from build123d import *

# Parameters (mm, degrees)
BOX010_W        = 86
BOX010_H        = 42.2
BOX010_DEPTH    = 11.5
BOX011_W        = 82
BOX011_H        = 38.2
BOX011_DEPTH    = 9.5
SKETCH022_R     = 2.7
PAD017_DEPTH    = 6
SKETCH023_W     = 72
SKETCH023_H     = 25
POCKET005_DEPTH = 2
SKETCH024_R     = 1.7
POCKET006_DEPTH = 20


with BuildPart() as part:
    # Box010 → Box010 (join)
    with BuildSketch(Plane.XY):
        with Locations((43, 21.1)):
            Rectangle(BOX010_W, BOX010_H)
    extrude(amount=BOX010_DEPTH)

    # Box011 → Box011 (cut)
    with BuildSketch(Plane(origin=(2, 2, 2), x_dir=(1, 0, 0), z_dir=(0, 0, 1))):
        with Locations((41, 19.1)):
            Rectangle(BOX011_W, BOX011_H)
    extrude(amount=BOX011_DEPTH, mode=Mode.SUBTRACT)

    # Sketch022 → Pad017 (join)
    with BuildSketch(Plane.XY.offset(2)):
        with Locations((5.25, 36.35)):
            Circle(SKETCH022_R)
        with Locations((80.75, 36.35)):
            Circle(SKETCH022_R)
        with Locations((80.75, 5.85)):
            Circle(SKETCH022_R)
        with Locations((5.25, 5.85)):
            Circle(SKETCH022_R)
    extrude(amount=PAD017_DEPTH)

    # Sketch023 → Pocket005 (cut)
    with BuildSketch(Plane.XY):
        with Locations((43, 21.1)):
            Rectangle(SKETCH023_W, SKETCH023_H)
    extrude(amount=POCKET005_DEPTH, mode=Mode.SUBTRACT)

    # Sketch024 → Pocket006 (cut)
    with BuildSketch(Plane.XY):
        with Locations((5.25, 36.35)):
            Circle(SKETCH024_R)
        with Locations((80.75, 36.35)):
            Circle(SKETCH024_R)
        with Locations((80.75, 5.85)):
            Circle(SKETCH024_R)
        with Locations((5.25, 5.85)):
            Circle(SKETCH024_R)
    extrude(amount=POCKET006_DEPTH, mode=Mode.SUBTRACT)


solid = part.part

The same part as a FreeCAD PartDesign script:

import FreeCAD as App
import Part
import Sketcher

doc = App.newDocument("Part")
body = doc.addObject("PartDesign::Body", "Body")

# Sketch on XY plane
sketch1 = doc.addObject("Sketcher::SketchObject", "Sketch")
body.addObject(sketch1)
sketch1.AttachmentSupport = (doc.XY_Plane, [""])
sketch1.MapMode = "FlatFace"
sketch1.addGeometry([
    Part.LineSegment(App.Vector(0, 42, 0), App.Vector(0, 0, 0)),
    Part.LineSegment(App.Vector(0, 0, 0), App.Vector(86, 0, 0)),
    Part.LineSegment(App.Vector(86, 0, 0), App.Vector(86, 42, 0)),
    Part.LineSegment(App.Vector(86, 42, 0), App.Vector(0, 42, 0)),
], False)
sketch1.addConstraint([
    Sketcher.Constraint("Coincident", 0, 2, 1, 1),
    Sketcher.Constraint("Coincident", 1, 2, 2, 1),
    Sketcher.Constraint("Coincident", 2, 2, 3, 1),
    Sketcher.Constraint("Coincident", 3, 2, 0, 1),
    Sketcher.Constraint("Vertical", 0),
    Sketcher.Constraint("Horizontal", 1),
    Sketcher.Constraint("Vertical", 2),
    Sketcher.Constraint("Horizontal", 3),
    Sketcher.Constraint("Coincident", 0, 2, -1, 1),
    Sketcher.Constraint("DistanceX", 1, 1, 1, 2, 86.0),
    Sketcher.Constraint("DistanceY", 0, 2, 0, 1, 42.2),
])
pad1 = doc.addObject("PartDesign::Pad", "Pad")
body.addObject(pad1)
pad1.Profile = sketch1
pad1.Length = 11.5

# Sketch on XY plane
sketch2 = doc.addObject("Sketcher::SketchObject", "Sketch001")
body.addObject(sketch2)
sketch2.AttachmentSupport = (doc.XY_Plane, [""])
sketch2.MapMode = "FlatFace"
sketch2.AttachmentOffset = App.Placement(App.Vector(0, 0, 2), App.Rotation())
sketch2.addGeometry([
    Part.LineSegment(App.Vector(2, 40, 0), App.Vector(2, 2, 0)),
    Part.LineSegment(App.Vector(2, 2, 0), App.Vector(84, 2, 0)),
    Part.LineSegment(App.Vector(84, 2, 0), App.Vector(84, 40, 0)),
    Part.LineSegment(App.Vector(84, 40, 0), App.Vector(2, 40, 0)),
], False)
sketch2.addConstraint([
    Sketcher.Constraint("Coincident", 0, 2, 1, 1),
    Sketcher.Constraint("Coincident", 1, 2, 2, 1),
    Sketcher.Constraint("Coincident", 2, 2, 3, 1),
    Sketcher.Constraint("Coincident", 3, 2, 0, 1),
    Sketcher.Constraint("Vertical", 0),
    Sketcher.Constraint("Horizontal", 1),
    Sketcher.Constraint("Vertical", 2),
    Sketcher.Constraint("Horizontal", 3),
    Sketcher.Constraint("DistanceX", 1, 1, 1, 2, 82.0),
    Sketcher.Constraint("DistanceY", 0, 2, 0, 1, 38.2),
    Sketcher.Constraint("DistanceX", -1, 1, 0, 2, 2.0),
    Sketcher.Constraint("DistanceY", -1, 1, 0, 2, 2.0),
])
pocket1 = doc.addObject("PartDesign::Pocket", "Pocket")
body.addObject(pocket1)
pocket1.Profile = sketch2
pocket1.Length = 9.5
pocket1.Reversed = True

# Sketch on XY plane
sketch3 = doc.addObject("Sketcher::SketchObject", "Sketch002")
body.addObject(sketch3)
sketch3.AttachmentSupport = (doc.XY_Plane, [""])
sketch3.MapMode = "FlatFace"
sketch3.AttachmentOffset = App.Placement(App.Vector(0, 0, 2), App.Rotation())
sketch3.addGeometry([
    Part.Circle(App.Vector(5.2, 36.4, 0), App.Vector(0, 0, 1), 2.7),
    Part.Circle(App.Vector(80.8, 36.4, 0), App.Vector(0, 0, 1), 2.7),
    Part.Circle(App.Vector(80.8, 5.8, 0), App.Vector(0, 0, 1), 2.7),
    Part.Circle(App.Vector(5.2, 5.8, 0), App.Vector(0, 0, 1), 2.7),
], False)
sketch3.addConstraint([
    Sketcher.Constraint("Equal", 0, 1),
    Sketcher.Constraint("Equal", 1, 2),
    Sketcher.Constraint("Equal", 2, 3),
    Sketcher.Constraint("Horizontal", 0, 3, 1, 3),
    Sketcher.Constraint("Horizontal", 2, 3, 3, 3),
    Sketcher.Constraint("Vertical", 1, 3, 2, 3),
    Sketcher.Constraint("Vertical", 0, 3, 3, 3),
    Sketcher.Constraint("Diameter", 0, 5.4),
    Sketcher.Constraint("DistanceX", 0, 3, 1, 3, 75.5),
    Sketcher.Constraint("DistanceY", 2, 3, 1, 3, 30.5),
    Sketcher.Constraint("DistanceX", -1, 1, 0, 3, 5.25),
    Sketcher.Constraint("DistanceY", -1, 1, 0, 3, 36.35),
])
pad2 = doc.addObject("PartDesign::Pad", "Pad001")
body.addObject(pad2)
pad2.Profile = sketch3
pad2.Length = 6

# Sketch on XY plane
sketch4 = doc.addObject("Sketcher::SketchObject", "Sketch003")
body.addObject(sketch4)
sketch4.AttachmentSupport = (doc.XY_Plane, [""])
sketch4.MapMode = "FlatFace"
sketch4.addGeometry([
    Part.LineSegment(App.Vector(7, 34, 0), App.Vector(7, 9, 0)),
    Part.LineSegment(App.Vector(7, 9, 0), App.Vector(79, 9, 0)),
    Part.LineSegment(App.Vector(79, 9, 0), App.Vector(79, 34, 0)),
    Part.LineSegment(App.Vector(79, 34, 0), App.Vector(7, 34, 0)),
], False)
sketch4.addConstraint([
    Sketcher.Constraint("Coincident", 0, 2, 1, 1),
    Sketcher.Constraint("Coincident", 1, 2, 2, 1),
    Sketcher.Constraint("Coincident", 2, 2, 3, 1),
    Sketcher.Constraint("Coincident", 3, 2, 0, 1),
    Sketcher.Constraint("Vertical", 0),
    Sketcher.Constraint("Horizontal", 1),
    Sketcher.Constraint("Vertical", 2),
    Sketcher.Constraint("Horizontal", 3),
    Sketcher.Constraint("DistanceX", 1, 1, 1, 2, 72.0),
    Sketcher.Constraint("DistanceY", 0, 2, 0, 1, 25.0),
    Sketcher.Constraint("DistanceX", -1, 1, 0, 2, 7.0),
    Sketcher.Constraint("DistanceY", -1, 1, 0, 2, 8.6),
])
pocket2 = doc.addObject("PartDesign::Pocket", "Pocket001")
body.addObject(pocket2)
pocket2.Profile = sketch4
pocket2.Length = 2
pocket2.Reversed = True

# Sketch on XY plane
sketch5 = doc.addObject("Sketcher::SketchObject", "Sketch004")
body.addObject(sketch5)
sketch5.AttachmentSupport = (doc.XY_Plane, [""])
sketch5.MapMode = "FlatFace"
sketch5.addGeometry([
    Part.Circle(App.Vector(5.2, 36.4, 0), App.Vector(0, 0, 1), 1.7),
    Part.Circle(App.Vector(80.8, 36.4, 0), App.Vector(0, 0, 1), 1.7),
    Part.Circle(App.Vector(80.8, 5.8, 0), App.Vector(0, 0, 1), 1.7),
    Part.Circle(App.Vector(5.2, 5.8, 0), App.Vector(0, 0, 1), 1.7),
], False)
sketch5.addConstraint([
    Sketcher.Constraint("Equal", 0, 1),
    Sketcher.Constraint("Equal", 1, 2),
    Sketcher.Constraint("Equal", 2, 3),
    Sketcher.Constraint("Horizontal", 0, 3, 1, 3),
    Sketcher.Constraint("Horizontal", 2, 3, 3, 3),
    Sketcher.Constraint("Vertical", 1, 3, 2, 3),
    Sketcher.Constraint("Vertical", 0, 3, 3, 3),
    Sketcher.Constraint("Diameter", 0, 3.4),
    Sketcher.Constraint("DistanceX", 0, 3, 1, 3, 75.5),
    Sketcher.Constraint("DistanceY", 2, 3, 1, 3, 30.5),
    Sketcher.Constraint("DistanceX", -1, 1, 0, 3, 5.25),
    Sketcher.Constraint("DistanceY", -1, 1, 0, 3, 36.35),
])
pocket3 = doc.addObject("PartDesign::Pocket", "Pocket002")
body.addObject(pocket3)
pocket3.Profile = sketch5
pocket3.Length = 20
pocket3.Reversed = True

doc.recompute()
